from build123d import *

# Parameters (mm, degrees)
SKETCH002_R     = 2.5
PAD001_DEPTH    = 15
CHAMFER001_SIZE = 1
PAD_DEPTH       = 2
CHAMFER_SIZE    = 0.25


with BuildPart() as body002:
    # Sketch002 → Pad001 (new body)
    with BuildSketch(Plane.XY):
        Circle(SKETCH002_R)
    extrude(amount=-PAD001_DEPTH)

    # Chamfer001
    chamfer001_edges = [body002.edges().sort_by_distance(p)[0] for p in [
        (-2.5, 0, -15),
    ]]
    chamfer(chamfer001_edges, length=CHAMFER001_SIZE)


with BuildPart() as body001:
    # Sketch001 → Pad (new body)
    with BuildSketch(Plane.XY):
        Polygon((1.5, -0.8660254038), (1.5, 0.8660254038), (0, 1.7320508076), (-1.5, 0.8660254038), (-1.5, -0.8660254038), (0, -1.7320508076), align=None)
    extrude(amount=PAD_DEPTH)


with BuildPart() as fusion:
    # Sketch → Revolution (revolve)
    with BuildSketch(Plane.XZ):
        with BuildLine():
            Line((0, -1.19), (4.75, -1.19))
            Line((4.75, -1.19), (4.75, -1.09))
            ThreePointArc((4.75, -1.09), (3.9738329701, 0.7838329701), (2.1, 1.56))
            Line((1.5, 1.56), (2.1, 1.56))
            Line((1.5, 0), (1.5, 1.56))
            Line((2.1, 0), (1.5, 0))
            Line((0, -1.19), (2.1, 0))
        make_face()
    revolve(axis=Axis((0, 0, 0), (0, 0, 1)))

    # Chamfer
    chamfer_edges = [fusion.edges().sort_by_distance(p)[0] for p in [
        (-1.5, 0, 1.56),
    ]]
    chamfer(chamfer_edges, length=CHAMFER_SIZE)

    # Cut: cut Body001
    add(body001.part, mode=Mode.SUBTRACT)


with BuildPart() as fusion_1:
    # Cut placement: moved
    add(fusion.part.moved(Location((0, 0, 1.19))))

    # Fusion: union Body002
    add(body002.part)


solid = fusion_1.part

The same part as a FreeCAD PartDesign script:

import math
import FreeCAD as App
import Part
import Sketcher

V = App.Vector
Q = App.Units.Quantity


def edges_at(feature, points):
    """Names of the edges that pass closest to the given points."""
    edges = feature.Shape.Edges
    near = lambda p: min(range(len(edges)), key=lambda i: edges[i].distToShape(Part.Vertex(*p))[0])
    return sorted({f"Edge{near(p) + 1}" for p in points})

doc = App.newDocument("Part")
body = doc.addObject("PartDesign::Body", "Body")

sketch1 = doc.addObject("Sketcher::SketchObject", "Sketch")
body.addObject(sketch1)
sketch1.AttachmentSupport = (doc.XY_Plane, [""])
sketch1.MapMode = "FlatFace"
sketch1.addGeometry(Part.Circle(V(0, 0, 0), V(0, 0, 1), 2.5), False)
sketch1.addConstraint(Sketcher.Constraint("Coincident", 0, 3, -1, 1))
sketch1.addConstraint(Sketcher.Constraint("Diameter", 0, Q("5 mm")))
pad1 = doc.addObject("PartDesign::Pad", "Pad")
body.addObject(pad1)
pad1.Profile = sketch1
pad1.Length = 15
pad1.Reversed = True
doc.recompute()

chamfer = doc.addObject("PartDesign::Chamfer", "Chamfer")
body.addObject(chamfer)
chamfer.Base = (pad1, edges_at(pad1, [(-2.5, 0, -15)]))
chamfer.Size = 1
body2 = doc.addObject("PartDesign::Body", "Body001")

sketch2 = doc.addObject("Sketcher::SketchObject", "Sketch001")
body2.addObject(sketch2)
sketch2.AttachmentSupport = (doc.getObject("XY_Plane001"), [""])
sketch2.MapMode = "FlatFace"
sketch2.addGeometry(Part.LineSegment(V(1.5, -0.9, 0), V(1.5, 0.9, 0)), False)
sketch2.addGeometry(Part.LineSegment(V(1.5, 0.9, 0), V(0, 1.7, 0)), False)
sketch2.addGeometry(Part.LineSegment(V(0, 1.7, 0), V(-1.5, 0.9, 0)), False)
sketch2.addGeometry(Part.LineSegment(V(-1.5, 0.9, 0), V(-1.5, -0.9, 0)), False)
sketch2.addGeometry(Part.LineSegment(V(-1.5, -0.9, 0), V(0, -1.7, 0)), False)
sketch2.addGeometry(Part.LineSegment(V(0, -1.7, 0), V(1.5, -0.9, 0)), False)
sketch2.addConstraint(Sketcher.Constraint("Coincident", 0, 2, 1, 1))
sketch2.addConstraint(Sketcher.Constraint("Coincident", 1, 2, 2, 1))
sketch2.addConstraint(Sketcher.Constraint("Coincident", 2, 2, 3, 1))
sketch2.addConstraint(Sketcher.Constraint("Coincident", 3, 2, 4, 1))
sketch2.addConstraint(Sketcher.Constraint("Coincident", 4, 2, 5, 1))
sketch2.addConstraint(Sketcher.Constraint("Coincident", 5, 2, 0, 1))
sketch2.addConstraint(Sketcher.Constraint("Vertical", 0))
sketch2.addConstraint(Sketcher.Constraint("Vertical", 3))
sketch2.addConstraint(Sketcher.Constraint("Symmetric", 0, 2, 3, 2, -1, 1))
sketch2.addConstraint(Sketcher.Constraint("Symmetric", 1, 2, 4, 2, -1, 1))
sketch2.addConstraint(Sketcher.Constraint("PointOnObject", 1, 2, -2))
sketch2.addConstraint(Sketcher.Constraint("Parallel", 2, 5))
sketch2.addConstraint(Sketcher.Constraint("Horizontal", 0, 2, 2, 2))
sketch2.addConstraint(Sketcher.Constraint("Angle", 1, Q("150 deg")))
sketch2.addConstraint(Sketcher.Constraint("DistanceX", 2, 2, 0, 2, Q("3 mm")))
sketch2.addConstraint(Sketcher.Constraint("DistanceY", 0, 1, 0, 2, Q("1.732051 mm")))
pad2 = doc.addObject("PartDesign::Pad", "Pad001")
body2.addObject(pad2)
pad2.Profile = sketch2
pad2.Length = 2
body3 = doc.addObject("PartDesign::Body", "Body002")

sketch3 = doc.addObject("Sketcher::SketchObject", "Sketch002")
body3.addObject(sketch3)
sketch3.AttachmentSupport = (doc.getObject("XZ_Plane002"), [""])
sketch3.MapMode = "FlatFace"
sketch3.addGeometry(Part.LineSegment(V(0, -1.19, 0), V(4.75, -1.19, 0)), False)
sketch3.addGeometry(Part.LineSegment(V(4.75, -1.19, 0), V(4.75, -1.09, 0)), False)
sketch3.addGeometry(Part.ArcOfCircle(Part.Circle(V(2.1, -1.09, 0), V(0, 0, 1), 2.65), math.radians(0), math.radians(90)), False)
sketch3.addGeometry(Part.LineSegment(V(2.1, 1.56, 0), V(1.5, 1.56, 0)), False)
sketch3.addGeometry(Part.LineSegment(V(1.5, 1.56, 0), V(1.5, 0, 0)), False)
sketch3.addGeometry(Part.LineSegment(V(1.5, 0, 0), V(2.1, 0, 0)), False)
sketch3.addGeometry(Part.LineSegment(V(2.1, 0, 0), V(0, -1.19, 0)), False)
sketch3.addConstraint(Sketcher.Constraint("Coincident", 0, 2, 1, 1))
sketch3.addConstraint(Sketcher.Constraint("Tangent", 1, 2, 2, 1))
sketch3.addConstraint(Sketcher.Constraint("Tangent", 2, 2, 3, 1))
sketch3.addConstraint(Sketcher.Constraint("Coincident", 3, 2, 4, 1))
sketch3.addConstraint(Sketcher.Constraint("Coincident", 4, 2, 5, 1))
sketch3.addConstraint(Sketcher.Constraint("Coincident", 5, 2, 6, 1))
sketch3.addConstraint(Sketcher.Constraint("Coincident", 6, 2, 0, 1))
sketch3.addConstraint(Sketcher.Constraint("Horizontal", 0))
sketch3.addConstraint(Sketcher.Constraint("Vertical", 1))
sketch3.addConstraint(Sketcher.Constraint("Horizontal", 3))
sketch3.addConstraint(Sketcher.Constraint("Vertical", 4))
sketch3.addConstraint(Sketcher.Constraint("Horizontal", 5))
sketch3.addConstraint(Sketcher.Constraint("PointOnObject", 4, 2, -1))
sketch3.addConstraint(Sketcher.Constraint("PointOnObject", 6, 2, -2))
sketch3.addConstraint(Sketcher.Constraint("Vertical", 2, 2, 5, 2))
sketch3.addConstraint(Sketcher.Constraint("Radius", 2, Q("2.65 mm")))
sketch3.addConstraint(Sketcher.Constraint("DistanceX", 3, 2, 3, 1, Q("0.6 mm")))
sketch3.addConstraint(Sketcher.Constraint("DistanceY", 1, 1, 1, 2, Q("0.1 mm")))
sketch3.addConstraint(Sketcher.Constraint("DistanceX", 0, 1, 0, 2, Q("4.75 mm")))
sketch3.addConstraint(Sketcher.Constraint("DistanceY", 4, 2, 4, 1, Q("1.56 mm")))
revolution = doc.addObject("PartDesign::Revolution", "Revolution")
body3.addObject(revolution)
revolution.Profile = sketch3
revolution.ReferenceAxis = (sketch3, ["V_Axis"])
revolution.Angle = 360
doc.recompute()

chamfer2 = doc.addObject("PartDesign::Chamfer", "Chamfer001")
body3.addObject(chamfer2)
chamfer2.Base = (revolution, edges_at(revolution, [(-1.5, 0, 1.56)]))
chamfer2.Size = 0.25
doc.recompute()

boolean = doc.addObject("PartDesign::Boolean", "Boolean")
body3.addObject(boolean)
boolean.Type = "Cut"
boolean.addObjects([body2])
body4 = doc.addObject("PartDesign::Body", "Body003")
doc.recompute()

body3.Placement = App.Placement(V(0, 0, 1.19), App.Rotation(V(0, 0, 1), 0))
boolean2 = doc.addObject("PartDesign::Boolean", "Boolean001")
body4.addObject(boolean2)
boolean2.Type = "Fuse"
boolean2.addObjects([body3])
doc.recompute()

boolean3 = doc.addObject("PartDesign::Boolean", "Boolean002")
body4.addObject(boolean3)
boolean3.Type = "Fuse"
boolean3.addObjects([body])

doc.recompute()
